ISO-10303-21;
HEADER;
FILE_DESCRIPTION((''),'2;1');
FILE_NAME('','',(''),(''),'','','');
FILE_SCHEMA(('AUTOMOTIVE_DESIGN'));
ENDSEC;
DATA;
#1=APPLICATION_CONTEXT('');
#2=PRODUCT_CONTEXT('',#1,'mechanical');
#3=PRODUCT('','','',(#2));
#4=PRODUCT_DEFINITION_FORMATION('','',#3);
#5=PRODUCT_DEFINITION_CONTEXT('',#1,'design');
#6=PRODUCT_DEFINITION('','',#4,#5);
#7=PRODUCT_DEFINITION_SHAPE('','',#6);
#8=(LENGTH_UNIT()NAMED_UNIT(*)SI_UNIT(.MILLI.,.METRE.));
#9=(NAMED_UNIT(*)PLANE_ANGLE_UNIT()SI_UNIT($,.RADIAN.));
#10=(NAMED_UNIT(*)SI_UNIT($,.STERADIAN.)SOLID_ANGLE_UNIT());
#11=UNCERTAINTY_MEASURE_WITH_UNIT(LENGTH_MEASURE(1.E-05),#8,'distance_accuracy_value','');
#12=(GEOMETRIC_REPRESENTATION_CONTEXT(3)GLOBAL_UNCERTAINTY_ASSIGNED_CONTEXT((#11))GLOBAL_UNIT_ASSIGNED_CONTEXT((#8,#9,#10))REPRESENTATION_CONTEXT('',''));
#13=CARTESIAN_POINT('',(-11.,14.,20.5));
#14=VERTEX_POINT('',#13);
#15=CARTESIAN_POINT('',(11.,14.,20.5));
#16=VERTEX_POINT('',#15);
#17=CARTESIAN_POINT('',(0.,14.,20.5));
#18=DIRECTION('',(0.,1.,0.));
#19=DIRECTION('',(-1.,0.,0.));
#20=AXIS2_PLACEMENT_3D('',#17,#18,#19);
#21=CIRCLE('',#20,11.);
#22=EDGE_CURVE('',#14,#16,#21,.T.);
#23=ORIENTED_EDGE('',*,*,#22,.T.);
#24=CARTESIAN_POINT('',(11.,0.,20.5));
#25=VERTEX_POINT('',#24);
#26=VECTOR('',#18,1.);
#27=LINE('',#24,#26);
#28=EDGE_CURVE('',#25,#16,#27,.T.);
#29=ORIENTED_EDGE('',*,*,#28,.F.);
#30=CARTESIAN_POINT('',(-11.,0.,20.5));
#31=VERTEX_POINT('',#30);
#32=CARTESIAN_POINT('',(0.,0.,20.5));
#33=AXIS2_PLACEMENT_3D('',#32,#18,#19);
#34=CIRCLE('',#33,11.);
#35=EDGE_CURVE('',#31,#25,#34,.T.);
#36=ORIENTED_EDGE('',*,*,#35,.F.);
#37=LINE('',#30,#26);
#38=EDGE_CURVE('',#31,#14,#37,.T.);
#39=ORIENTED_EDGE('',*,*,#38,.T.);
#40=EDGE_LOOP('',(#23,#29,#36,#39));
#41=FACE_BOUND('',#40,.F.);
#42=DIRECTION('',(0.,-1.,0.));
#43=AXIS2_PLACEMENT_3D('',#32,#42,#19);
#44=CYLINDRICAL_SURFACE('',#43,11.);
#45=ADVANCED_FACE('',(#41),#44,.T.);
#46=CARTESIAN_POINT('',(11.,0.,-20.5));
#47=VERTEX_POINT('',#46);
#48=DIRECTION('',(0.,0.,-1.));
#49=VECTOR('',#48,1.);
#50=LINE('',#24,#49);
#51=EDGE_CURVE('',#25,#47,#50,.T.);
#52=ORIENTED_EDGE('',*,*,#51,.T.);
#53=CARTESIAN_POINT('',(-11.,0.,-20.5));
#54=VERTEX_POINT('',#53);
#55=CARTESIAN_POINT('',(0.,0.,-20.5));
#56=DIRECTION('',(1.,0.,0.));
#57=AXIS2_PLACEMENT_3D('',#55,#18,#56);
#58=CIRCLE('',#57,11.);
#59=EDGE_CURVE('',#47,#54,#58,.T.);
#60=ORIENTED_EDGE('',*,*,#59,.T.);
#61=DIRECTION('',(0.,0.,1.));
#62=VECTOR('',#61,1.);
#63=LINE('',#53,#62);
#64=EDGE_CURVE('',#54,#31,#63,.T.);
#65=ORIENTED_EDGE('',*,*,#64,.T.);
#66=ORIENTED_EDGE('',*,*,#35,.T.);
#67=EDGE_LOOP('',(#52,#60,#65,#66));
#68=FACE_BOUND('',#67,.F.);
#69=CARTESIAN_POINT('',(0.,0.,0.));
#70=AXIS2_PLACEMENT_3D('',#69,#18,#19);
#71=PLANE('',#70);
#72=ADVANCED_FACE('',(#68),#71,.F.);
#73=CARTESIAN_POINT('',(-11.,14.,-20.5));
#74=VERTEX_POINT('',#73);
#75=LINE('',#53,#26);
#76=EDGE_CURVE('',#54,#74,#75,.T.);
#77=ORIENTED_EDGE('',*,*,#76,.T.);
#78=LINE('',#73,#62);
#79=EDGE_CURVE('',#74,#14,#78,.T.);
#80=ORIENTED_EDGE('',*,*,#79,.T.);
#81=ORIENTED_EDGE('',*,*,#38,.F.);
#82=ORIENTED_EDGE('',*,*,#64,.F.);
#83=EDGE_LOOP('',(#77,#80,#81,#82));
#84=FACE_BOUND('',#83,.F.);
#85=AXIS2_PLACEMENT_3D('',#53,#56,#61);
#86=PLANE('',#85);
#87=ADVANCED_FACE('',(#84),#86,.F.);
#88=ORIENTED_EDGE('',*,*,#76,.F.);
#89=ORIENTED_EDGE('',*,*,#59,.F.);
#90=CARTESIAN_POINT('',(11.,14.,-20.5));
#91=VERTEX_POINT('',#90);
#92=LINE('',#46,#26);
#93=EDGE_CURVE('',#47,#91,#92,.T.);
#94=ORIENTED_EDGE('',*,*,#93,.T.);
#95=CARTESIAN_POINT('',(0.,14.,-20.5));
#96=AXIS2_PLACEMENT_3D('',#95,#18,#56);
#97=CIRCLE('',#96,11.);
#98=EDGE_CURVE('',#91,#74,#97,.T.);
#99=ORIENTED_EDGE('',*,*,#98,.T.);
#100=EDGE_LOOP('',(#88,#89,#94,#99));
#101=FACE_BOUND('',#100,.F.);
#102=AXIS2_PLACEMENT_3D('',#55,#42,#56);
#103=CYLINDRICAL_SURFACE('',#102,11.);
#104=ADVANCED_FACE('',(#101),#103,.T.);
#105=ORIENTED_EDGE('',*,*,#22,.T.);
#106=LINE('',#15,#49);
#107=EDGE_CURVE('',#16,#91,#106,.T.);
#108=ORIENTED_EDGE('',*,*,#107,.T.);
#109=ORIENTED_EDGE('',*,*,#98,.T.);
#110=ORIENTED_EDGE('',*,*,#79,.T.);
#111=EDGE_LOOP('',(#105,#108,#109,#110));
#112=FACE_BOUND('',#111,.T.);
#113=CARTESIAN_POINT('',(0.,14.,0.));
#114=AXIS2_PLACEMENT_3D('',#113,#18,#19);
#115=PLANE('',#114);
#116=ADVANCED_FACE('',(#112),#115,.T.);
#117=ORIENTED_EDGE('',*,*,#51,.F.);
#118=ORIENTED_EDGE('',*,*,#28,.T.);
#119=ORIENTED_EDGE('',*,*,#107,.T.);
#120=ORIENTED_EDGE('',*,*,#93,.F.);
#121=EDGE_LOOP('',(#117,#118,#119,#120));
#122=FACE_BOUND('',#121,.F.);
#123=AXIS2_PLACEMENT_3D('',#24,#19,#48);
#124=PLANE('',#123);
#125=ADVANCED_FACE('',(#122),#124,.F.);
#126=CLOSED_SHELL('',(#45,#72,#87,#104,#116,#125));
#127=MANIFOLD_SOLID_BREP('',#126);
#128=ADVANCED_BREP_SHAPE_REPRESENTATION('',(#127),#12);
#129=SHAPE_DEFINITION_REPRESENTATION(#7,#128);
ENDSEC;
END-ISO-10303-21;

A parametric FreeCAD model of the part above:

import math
import FreeCAD as App
import Part
import Sketcher

doc = App.newDocument("Part")
body = doc.addObject("PartDesign::Body", "Body")

# Sketch on XZ plane
sketch1 = doc.addObject("Sketcher::SketchObject", "Sketch")
body.addObject(sketch1)
sketch1.AttachmentSupport = (doc.XZ_Plane, [""])
sketch1.MapMode = "FlatFace"
sketch1.addGeometry(Part.ArcOfCircle(Part.Circle(App.Vector(0, -20, 0), App.Vector(0, 0, 1), 11), math.radians(180), math.radians(360)), False)
sketch1.addGeometry(Part.LineSegment(App.Vector(-11, -20, 0), App.Vector(-11, 20, 0)), False)
sketch1.addGeometry(Part.ArcOfCircle(Part.Circle(App.Vector(0, 20, 0), App.Vector(0, 0, 1), 11), math.radians(0), math.radians(180)), False)
sketch1.addGeometry(Part.LineSegment(App.Vector(11, 20, 0), App.Vector(11, -20, 0)), False)
sketch1.addConstraint(Sketcher.Constraint("Tangent", 0, 1, 1, 1))
sketch1.addConstraint(Sketcher.Constraint("Tangent", 1, 2, 2, 2))
sketch1.addConstraint(Sketcher.Constraint("Tangent", 2, 1, 3, 1))
sketch1.addConstraint(Sketcher.Constraint("Tangent", 3, 2, 0, 2))
sketch1.addConstraint(Sketcher.Constraint("Vertical", 1))
sketch1.addConstraint(Sketcher.Constraint("Vertical", 3))
sketch1.addConstraint(Sketcher.Constraint("Symmetric", 0, 3, 2, 3, -1, 1))
sketch1.addConstraint(Sketcher.Constraint("Radius", 0, 11.0))
sketch1.addConstraint(Sketcher.Constraint("DistanceY", 1, 1, 1, 2, 41.0))
pad1 = doc.addObject("PartDesign::Pad", "Pad")
body.addObject(pad1)
pad1.Profile = sketch1
pad1.Length = 14
pad1.Reversed = True

doc.recompute()
